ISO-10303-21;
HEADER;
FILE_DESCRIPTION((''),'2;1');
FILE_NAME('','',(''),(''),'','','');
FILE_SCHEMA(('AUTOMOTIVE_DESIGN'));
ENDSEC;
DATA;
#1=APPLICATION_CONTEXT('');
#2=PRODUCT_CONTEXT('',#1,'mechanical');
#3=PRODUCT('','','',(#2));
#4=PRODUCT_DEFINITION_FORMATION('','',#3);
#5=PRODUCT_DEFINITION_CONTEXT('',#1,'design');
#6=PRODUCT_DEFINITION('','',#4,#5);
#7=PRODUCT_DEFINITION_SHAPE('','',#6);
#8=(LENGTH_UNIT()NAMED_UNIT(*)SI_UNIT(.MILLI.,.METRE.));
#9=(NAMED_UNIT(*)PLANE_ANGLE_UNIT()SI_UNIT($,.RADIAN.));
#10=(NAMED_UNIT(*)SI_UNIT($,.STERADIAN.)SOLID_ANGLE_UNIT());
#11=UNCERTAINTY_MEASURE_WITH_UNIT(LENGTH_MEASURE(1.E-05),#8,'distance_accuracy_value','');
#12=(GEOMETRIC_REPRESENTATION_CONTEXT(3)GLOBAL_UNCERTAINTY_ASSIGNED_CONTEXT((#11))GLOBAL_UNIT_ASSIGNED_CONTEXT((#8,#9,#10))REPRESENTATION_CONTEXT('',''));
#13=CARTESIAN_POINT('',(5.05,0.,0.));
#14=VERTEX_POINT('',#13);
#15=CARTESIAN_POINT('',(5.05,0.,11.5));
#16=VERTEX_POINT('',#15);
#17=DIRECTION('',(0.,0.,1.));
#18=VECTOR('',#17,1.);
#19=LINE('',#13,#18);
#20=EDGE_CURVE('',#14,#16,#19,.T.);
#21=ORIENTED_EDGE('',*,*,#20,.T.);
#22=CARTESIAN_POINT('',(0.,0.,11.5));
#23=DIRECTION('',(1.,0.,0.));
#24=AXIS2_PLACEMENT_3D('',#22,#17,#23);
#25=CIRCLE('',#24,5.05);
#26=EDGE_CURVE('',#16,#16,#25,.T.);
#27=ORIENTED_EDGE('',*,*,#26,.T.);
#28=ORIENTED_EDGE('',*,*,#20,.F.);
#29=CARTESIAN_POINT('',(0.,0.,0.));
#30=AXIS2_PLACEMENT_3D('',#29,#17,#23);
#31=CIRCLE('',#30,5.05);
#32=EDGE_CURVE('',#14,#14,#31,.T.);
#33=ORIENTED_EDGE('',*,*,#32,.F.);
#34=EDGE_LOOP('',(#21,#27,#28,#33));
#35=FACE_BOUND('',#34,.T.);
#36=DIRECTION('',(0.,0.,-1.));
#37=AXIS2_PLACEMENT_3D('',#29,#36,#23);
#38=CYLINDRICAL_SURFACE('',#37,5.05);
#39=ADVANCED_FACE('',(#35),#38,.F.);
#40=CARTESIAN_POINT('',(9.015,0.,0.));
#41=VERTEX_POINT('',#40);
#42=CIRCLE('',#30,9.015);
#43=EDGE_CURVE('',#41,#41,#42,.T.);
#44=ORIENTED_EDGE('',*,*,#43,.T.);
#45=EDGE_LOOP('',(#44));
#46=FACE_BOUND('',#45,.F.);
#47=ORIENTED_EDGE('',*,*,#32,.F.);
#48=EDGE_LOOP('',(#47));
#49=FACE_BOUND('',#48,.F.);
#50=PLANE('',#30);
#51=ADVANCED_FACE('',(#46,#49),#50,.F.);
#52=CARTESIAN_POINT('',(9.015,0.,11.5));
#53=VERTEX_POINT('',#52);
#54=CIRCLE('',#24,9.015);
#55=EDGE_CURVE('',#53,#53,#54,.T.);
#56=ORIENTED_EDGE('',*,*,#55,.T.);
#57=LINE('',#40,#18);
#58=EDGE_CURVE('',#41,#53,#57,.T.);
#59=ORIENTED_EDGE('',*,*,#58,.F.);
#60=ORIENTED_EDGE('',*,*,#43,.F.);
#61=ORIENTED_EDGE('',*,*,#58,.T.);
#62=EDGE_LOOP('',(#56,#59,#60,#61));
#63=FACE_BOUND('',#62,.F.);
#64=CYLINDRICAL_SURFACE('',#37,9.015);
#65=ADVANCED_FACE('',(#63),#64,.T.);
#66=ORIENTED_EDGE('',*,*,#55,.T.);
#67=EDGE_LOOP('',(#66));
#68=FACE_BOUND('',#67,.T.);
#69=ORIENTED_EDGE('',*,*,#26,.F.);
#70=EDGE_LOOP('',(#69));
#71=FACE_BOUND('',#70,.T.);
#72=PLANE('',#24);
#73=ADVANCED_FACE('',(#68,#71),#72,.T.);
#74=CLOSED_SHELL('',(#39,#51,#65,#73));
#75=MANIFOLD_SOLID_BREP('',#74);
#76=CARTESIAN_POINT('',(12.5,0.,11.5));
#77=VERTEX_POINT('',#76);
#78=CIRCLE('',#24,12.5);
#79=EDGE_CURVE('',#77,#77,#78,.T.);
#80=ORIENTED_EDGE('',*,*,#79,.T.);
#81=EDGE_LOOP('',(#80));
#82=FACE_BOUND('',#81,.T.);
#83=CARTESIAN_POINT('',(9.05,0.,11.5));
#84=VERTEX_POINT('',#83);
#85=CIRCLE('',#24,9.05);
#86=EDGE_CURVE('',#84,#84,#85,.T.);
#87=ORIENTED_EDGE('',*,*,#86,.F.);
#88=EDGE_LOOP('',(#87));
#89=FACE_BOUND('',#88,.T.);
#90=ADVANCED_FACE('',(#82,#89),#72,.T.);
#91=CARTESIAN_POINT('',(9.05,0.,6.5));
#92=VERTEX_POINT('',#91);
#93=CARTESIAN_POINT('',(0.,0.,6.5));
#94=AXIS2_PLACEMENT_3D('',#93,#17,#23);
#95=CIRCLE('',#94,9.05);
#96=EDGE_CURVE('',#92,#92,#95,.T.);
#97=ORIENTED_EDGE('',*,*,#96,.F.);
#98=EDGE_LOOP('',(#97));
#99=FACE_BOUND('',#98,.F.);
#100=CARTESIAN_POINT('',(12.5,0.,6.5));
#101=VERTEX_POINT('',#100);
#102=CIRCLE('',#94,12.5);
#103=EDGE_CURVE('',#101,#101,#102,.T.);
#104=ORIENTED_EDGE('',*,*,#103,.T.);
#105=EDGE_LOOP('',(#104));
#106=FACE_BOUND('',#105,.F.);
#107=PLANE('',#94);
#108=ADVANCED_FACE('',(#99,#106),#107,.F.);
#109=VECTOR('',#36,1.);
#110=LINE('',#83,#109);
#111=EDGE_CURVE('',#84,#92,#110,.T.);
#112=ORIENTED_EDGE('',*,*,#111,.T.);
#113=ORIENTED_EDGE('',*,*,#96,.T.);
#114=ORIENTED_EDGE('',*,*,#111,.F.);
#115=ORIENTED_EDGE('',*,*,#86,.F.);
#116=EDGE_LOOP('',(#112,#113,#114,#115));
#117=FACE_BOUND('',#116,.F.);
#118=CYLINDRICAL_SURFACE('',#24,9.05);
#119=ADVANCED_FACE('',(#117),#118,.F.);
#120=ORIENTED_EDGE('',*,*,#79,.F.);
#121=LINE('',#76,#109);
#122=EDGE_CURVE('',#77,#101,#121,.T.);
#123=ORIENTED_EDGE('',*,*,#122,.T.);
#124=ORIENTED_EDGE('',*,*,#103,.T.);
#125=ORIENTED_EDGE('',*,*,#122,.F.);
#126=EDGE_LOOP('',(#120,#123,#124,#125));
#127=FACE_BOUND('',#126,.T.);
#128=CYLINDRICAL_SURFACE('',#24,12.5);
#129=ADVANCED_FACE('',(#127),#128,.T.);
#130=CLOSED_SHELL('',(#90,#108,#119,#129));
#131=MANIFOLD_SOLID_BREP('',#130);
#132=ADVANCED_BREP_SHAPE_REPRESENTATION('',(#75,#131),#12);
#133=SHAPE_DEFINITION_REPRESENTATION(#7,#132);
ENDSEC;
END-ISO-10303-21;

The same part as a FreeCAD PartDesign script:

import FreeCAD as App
import Part
import Sketcher
from FreeCAD import Vector
Q = App.Units.Quantity

doc = App.newDocument("Part")
body = doc.addObject("PartDesign::Body", "Body")
body.AllowCompound = True

# Sketch on XY plane
sketch1 = body.newObject("Sketcher::SketchObject", "Sketch")
sketch1.AttachmentSupport = (doc.getObject("XY_Plane"), [""])
sketch1.MapMode = "FlatFace"
sketch1.addGeometry([
    Part.Circle(Vector(0, 0, 0), Vector(0, 0, 1), 9.015),
    Part.Circle(Vector(0, 0, 0), Vector(0, 0, 1), 5.05),
], False)
sketch1.addConstraint([
    Sketcher.Constraint("Coincident", 0, 3, -1, 1),
    Sketcher.Constraint("Coincident", 1, 3, -1, 1),
    Sketcher.Constraint("Diameter", 1, Q("10.1 mm")),
    Sketcher.Constraint("Diameter", 0, Q("18.03 mm")),
])
pad1 = body.newObject("PartDesign::Pad", "Pad")
pad1.Profile = sketch1
pad1.Length = 11.5

# Sketch on XY plane
sketch2 = body.newObject("Sketcher::SketchObject", "Sketch001")
sketch2.AttachmentSupport = (doc.getObject("XY_Plane"), [""])
sketch2.MapMode = "FlatFace"
sketch2.AttachmentOffset = App.Placement(Vector(0, 0, 11.5), App.Rotation())
sketch2.addGeometry([
    Part.Circle(Vector(0, 0, 0), Vector(0, 0, 1), 12.5),
    Part.Circle(Vector(0, 0, 0), Vector(0, 0, 1), 9.05),
], False)
sketch2.addConstraint([
    Sketcher.Constraint("Coincident", 0, 3, -1, 1),
    Sketcher.Constraint("Coincident", 1, 3, -1, 1),
    Sketcher.Constraint("Diameter", 0, Q("25 mm")),
    Sketcher.Constraint("Diameter", 1, Q("18.1 mm")),
])
pad2 = body.newObject("PartDesign::Pad", "Pad001")
pad2.Profile = sketch2
pad2.Length = 5
pad2.Reversed = True

doc.recompute()
